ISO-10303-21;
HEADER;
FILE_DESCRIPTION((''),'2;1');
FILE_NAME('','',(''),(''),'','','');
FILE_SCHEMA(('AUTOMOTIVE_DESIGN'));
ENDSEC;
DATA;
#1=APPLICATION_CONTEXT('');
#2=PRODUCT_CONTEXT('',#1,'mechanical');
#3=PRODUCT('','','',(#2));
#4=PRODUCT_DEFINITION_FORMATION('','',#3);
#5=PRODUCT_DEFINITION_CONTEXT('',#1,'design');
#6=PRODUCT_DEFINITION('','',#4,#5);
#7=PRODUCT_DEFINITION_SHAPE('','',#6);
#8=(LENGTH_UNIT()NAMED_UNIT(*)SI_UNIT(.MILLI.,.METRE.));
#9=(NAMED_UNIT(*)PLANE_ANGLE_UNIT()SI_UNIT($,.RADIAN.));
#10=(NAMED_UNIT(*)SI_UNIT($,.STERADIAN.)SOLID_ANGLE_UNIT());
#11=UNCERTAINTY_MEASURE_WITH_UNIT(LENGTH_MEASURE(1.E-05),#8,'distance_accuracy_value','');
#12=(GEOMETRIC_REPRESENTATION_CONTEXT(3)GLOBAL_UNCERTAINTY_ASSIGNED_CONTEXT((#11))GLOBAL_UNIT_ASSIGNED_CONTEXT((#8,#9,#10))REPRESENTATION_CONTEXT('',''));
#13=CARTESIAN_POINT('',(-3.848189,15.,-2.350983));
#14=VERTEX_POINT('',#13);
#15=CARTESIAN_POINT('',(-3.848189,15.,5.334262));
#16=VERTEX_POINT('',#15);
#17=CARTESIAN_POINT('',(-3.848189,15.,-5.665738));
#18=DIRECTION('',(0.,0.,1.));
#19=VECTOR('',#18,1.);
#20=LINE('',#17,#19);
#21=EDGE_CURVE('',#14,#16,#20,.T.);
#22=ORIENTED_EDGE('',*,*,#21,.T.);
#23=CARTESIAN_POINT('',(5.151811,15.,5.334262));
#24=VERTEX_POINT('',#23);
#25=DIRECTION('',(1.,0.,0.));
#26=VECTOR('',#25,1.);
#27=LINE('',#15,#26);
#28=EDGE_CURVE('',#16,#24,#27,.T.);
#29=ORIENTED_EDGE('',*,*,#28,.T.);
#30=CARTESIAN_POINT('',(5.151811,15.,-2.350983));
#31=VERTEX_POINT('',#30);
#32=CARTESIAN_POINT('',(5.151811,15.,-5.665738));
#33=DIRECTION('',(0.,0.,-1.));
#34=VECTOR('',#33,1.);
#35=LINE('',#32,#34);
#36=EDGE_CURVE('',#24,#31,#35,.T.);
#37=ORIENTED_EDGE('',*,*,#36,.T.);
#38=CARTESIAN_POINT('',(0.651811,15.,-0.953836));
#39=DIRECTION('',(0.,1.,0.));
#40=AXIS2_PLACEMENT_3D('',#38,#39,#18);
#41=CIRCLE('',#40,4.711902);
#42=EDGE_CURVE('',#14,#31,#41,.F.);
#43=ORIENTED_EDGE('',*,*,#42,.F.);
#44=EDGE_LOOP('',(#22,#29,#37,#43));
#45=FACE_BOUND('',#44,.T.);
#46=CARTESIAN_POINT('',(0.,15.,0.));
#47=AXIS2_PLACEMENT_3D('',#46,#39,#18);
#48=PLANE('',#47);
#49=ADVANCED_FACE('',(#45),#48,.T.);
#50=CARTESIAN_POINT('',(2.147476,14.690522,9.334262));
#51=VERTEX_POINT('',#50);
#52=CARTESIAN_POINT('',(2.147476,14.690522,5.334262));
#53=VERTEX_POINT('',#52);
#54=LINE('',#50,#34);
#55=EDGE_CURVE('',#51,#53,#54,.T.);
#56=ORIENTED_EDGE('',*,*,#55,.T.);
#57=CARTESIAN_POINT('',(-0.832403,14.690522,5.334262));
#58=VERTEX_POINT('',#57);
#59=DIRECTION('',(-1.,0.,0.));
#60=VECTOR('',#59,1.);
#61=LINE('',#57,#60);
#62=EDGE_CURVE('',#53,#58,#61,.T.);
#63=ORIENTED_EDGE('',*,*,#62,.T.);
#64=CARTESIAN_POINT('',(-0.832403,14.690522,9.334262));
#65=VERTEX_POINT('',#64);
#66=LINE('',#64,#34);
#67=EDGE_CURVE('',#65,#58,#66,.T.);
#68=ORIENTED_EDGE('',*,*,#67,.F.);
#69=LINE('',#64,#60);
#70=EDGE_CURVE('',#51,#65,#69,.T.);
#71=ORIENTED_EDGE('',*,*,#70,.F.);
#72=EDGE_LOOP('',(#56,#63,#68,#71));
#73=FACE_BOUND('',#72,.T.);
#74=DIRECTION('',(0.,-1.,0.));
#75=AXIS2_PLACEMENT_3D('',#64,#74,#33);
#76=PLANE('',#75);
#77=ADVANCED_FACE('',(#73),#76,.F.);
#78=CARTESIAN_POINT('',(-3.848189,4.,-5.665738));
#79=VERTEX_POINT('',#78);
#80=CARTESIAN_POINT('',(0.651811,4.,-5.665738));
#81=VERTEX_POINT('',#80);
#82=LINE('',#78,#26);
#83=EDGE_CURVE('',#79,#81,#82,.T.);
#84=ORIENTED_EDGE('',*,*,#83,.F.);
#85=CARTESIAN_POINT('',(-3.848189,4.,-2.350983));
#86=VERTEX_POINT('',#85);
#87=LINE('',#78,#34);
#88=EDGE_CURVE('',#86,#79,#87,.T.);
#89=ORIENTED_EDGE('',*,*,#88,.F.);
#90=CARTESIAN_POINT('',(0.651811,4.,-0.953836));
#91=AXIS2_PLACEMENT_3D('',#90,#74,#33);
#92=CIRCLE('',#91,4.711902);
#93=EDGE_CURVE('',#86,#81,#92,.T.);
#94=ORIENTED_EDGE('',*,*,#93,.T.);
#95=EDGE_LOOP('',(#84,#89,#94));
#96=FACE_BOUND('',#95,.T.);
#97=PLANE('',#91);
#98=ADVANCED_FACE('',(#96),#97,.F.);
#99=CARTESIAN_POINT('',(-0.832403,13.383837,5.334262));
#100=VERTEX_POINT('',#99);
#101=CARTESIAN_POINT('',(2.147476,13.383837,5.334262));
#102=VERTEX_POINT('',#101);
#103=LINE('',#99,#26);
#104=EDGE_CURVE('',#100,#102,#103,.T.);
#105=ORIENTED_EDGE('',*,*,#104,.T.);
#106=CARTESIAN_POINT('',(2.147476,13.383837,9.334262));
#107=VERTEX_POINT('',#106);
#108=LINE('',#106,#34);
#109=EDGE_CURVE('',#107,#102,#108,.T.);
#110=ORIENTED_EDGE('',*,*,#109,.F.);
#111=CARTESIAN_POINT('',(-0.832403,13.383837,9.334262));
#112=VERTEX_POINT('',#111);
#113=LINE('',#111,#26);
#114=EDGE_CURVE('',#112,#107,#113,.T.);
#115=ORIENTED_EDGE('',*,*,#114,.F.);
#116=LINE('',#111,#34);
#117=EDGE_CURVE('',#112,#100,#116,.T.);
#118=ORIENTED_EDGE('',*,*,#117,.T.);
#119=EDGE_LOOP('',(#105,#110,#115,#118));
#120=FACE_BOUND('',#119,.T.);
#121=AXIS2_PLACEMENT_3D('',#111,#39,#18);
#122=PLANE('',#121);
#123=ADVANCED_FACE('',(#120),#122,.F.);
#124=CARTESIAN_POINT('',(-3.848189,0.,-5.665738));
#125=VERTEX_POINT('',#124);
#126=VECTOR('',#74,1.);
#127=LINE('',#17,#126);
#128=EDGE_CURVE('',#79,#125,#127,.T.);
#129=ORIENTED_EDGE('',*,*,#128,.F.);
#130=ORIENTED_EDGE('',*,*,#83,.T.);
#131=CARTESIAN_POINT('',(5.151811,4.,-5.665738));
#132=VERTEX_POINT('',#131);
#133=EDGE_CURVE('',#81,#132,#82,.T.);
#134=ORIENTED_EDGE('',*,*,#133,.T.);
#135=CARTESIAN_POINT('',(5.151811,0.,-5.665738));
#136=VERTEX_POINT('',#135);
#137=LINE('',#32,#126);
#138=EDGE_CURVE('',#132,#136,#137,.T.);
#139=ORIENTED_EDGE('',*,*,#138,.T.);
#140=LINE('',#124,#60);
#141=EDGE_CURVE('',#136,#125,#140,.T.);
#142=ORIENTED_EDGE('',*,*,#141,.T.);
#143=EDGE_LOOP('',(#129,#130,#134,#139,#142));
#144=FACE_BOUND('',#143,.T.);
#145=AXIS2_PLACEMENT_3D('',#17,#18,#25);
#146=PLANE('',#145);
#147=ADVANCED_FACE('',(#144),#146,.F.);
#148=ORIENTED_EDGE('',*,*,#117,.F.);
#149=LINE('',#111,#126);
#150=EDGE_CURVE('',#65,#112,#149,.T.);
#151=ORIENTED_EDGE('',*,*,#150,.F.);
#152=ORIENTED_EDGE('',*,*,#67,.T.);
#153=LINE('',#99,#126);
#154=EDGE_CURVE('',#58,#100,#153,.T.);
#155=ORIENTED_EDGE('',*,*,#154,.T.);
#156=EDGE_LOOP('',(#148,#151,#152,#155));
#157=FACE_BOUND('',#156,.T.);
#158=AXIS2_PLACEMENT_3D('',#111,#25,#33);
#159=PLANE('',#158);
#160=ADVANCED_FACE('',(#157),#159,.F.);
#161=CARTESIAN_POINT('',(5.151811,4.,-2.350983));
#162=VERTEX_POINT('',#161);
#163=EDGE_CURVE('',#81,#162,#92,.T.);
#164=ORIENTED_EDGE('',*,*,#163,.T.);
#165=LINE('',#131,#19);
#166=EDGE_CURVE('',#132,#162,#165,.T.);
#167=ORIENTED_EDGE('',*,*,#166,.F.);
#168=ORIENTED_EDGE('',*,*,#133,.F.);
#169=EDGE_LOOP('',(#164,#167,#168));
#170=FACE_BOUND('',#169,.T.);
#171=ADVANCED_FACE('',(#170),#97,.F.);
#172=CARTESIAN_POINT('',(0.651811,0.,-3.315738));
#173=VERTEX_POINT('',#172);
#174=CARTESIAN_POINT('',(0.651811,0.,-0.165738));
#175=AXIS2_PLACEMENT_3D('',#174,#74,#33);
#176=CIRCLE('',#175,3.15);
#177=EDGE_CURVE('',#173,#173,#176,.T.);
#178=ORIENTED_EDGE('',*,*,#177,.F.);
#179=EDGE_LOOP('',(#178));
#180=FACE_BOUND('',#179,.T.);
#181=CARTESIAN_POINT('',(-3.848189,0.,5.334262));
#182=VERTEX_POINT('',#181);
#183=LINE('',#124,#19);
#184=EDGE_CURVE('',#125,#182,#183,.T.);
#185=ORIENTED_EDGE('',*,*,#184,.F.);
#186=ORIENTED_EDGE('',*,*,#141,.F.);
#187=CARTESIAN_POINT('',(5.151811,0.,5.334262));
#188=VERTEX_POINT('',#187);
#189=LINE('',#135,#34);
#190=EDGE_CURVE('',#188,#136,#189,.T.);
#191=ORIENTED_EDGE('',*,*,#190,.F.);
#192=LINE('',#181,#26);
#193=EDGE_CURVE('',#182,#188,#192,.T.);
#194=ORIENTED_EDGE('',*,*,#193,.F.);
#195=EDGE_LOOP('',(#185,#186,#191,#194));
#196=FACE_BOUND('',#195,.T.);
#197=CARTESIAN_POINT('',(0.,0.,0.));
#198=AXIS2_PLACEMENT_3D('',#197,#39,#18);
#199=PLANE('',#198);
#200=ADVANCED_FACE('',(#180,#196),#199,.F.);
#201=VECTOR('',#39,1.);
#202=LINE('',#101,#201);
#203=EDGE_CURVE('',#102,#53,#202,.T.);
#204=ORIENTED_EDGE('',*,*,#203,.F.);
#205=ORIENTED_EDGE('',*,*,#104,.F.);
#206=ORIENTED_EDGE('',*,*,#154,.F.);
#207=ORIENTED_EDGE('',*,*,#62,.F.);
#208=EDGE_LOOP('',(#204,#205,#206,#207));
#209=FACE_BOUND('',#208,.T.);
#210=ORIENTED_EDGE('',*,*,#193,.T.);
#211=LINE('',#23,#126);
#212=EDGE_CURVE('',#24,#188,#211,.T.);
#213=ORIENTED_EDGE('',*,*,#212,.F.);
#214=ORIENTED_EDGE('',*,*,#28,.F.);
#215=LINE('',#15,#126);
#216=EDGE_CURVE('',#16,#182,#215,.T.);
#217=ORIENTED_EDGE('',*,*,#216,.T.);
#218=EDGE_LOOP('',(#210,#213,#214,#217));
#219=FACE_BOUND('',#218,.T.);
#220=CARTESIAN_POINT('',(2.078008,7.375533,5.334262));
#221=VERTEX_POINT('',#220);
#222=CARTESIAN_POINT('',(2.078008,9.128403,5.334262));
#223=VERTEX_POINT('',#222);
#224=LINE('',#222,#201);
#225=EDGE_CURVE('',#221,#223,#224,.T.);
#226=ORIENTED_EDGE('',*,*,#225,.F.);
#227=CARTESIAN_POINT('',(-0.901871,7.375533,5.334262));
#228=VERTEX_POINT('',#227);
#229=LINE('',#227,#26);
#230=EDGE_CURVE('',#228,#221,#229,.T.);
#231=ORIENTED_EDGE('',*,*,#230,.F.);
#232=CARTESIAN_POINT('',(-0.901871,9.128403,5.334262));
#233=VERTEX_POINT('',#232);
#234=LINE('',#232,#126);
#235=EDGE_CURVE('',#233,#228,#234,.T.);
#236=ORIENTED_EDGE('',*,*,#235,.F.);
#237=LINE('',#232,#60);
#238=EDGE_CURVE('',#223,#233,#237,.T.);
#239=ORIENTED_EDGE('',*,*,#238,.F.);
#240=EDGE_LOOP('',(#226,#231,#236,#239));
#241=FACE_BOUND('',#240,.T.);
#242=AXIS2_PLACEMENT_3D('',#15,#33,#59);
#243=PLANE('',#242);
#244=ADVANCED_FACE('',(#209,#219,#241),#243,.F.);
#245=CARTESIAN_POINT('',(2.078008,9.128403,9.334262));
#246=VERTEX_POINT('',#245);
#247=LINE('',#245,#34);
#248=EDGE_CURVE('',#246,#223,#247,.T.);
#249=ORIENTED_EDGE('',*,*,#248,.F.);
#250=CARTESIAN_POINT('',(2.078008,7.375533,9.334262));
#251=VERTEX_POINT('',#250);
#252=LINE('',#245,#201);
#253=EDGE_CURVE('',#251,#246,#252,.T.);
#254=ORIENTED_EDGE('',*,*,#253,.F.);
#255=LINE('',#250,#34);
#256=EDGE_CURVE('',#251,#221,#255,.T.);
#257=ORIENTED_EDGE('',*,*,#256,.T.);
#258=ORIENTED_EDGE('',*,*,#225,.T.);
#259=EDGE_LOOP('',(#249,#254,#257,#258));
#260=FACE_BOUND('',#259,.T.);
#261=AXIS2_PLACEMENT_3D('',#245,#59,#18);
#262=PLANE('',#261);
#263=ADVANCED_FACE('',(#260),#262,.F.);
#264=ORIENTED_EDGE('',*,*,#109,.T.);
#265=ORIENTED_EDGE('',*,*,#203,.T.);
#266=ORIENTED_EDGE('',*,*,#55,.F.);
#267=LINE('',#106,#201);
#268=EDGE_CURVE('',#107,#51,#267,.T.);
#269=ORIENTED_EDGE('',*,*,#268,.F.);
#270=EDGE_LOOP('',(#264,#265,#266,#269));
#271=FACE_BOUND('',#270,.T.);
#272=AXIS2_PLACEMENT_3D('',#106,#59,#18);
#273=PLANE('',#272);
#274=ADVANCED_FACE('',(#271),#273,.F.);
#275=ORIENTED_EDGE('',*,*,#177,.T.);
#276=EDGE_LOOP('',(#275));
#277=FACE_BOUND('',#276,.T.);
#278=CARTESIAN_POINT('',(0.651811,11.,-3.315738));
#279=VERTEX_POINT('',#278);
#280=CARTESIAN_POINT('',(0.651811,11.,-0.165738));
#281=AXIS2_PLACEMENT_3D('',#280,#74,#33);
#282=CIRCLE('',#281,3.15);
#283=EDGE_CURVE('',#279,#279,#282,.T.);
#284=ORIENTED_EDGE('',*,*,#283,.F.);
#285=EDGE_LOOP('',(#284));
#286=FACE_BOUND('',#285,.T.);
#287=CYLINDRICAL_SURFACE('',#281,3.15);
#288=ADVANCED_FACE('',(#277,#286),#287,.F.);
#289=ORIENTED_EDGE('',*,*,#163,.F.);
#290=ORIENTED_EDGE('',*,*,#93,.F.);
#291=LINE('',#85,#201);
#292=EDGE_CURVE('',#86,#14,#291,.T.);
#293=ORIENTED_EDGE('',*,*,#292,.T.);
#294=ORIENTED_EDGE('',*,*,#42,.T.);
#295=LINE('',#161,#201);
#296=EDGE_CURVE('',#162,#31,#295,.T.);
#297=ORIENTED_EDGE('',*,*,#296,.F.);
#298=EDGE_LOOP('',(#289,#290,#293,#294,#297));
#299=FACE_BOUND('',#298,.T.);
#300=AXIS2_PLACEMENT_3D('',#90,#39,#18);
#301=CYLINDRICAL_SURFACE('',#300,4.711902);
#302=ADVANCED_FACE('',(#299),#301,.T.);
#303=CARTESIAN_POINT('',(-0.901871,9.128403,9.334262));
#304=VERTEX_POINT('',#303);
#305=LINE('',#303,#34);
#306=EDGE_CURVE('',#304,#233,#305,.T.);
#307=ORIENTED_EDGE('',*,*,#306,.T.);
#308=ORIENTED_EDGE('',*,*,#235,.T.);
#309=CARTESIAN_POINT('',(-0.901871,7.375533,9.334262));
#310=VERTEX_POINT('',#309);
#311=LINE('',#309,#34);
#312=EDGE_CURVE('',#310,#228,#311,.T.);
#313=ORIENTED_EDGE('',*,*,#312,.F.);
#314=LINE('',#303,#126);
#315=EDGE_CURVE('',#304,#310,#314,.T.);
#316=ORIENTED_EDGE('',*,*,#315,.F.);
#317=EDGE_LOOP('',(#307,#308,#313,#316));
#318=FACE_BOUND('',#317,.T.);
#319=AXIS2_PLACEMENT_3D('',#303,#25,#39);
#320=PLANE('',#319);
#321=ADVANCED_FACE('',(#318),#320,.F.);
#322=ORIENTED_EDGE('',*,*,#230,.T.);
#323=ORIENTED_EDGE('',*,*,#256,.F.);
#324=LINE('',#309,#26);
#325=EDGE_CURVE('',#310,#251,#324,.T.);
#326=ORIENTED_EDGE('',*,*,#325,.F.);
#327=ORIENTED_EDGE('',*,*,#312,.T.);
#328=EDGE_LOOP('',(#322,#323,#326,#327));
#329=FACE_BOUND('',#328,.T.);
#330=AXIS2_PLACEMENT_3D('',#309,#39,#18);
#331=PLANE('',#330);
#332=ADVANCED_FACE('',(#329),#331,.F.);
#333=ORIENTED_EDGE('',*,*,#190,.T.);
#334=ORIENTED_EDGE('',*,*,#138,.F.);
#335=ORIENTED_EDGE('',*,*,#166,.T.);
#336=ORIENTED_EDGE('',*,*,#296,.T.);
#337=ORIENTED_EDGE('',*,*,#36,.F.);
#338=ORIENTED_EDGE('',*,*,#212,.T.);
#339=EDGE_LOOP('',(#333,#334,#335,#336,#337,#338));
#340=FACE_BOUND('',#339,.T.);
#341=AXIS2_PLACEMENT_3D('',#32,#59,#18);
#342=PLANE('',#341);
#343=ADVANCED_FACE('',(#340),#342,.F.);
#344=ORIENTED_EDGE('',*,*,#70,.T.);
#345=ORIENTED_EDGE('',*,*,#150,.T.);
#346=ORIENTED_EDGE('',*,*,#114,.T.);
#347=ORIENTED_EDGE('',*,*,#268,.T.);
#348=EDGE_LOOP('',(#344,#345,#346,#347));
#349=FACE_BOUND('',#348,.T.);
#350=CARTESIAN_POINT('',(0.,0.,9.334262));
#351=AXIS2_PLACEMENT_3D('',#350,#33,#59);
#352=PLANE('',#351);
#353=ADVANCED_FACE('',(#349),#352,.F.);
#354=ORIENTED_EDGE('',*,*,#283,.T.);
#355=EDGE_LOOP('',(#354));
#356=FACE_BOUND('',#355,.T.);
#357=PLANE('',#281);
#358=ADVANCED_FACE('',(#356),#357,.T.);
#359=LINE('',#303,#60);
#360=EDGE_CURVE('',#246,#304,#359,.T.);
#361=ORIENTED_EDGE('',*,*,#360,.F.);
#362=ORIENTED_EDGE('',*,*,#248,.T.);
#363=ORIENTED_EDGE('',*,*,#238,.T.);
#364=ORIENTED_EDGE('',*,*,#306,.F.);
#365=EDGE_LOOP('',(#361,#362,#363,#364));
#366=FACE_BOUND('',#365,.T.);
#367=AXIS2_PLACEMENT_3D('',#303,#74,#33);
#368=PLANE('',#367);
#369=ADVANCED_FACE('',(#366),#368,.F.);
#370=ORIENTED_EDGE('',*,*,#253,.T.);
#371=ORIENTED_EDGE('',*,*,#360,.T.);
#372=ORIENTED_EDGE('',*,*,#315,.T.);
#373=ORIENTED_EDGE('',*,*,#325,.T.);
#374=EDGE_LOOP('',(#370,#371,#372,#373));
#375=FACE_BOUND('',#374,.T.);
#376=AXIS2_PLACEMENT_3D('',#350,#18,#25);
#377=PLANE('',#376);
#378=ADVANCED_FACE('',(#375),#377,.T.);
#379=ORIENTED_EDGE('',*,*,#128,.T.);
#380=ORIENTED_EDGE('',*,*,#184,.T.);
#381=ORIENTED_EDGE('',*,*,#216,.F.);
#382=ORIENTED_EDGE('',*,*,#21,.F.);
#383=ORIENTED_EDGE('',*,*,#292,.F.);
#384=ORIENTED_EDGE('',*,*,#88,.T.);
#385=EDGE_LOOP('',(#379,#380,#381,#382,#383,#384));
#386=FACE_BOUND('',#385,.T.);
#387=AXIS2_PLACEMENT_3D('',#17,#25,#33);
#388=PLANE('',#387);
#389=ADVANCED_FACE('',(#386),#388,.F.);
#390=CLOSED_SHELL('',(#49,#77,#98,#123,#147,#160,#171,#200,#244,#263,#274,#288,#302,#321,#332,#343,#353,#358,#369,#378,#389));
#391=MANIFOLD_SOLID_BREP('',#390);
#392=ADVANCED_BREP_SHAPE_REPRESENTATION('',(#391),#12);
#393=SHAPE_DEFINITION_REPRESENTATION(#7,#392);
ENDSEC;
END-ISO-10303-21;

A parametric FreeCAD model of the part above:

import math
import FreeCAD as App
import Part
import Sketcher
from FreeCAD import Vector


def add_polygon(sketch, points):
    """Adds a closed chain of lines whose ends are joined by coincident constraints."""
    first, n = sketch.GeometryCount, len(points)
    for a, b in zip(points, points[1:] + points[:1]):
        sketch.addGeometry(Part.LineSegment(App.Vector(*a, 0), App.Vector(*b, 0)), False)
    for i in range(n):
        sketch.addConstraint(Sketcher.Constraint("Coincident", first + i, 2, first + (i + 1) % n, 1))

doc = App.newDocument("Part")
body = doc.addObject("PartDesign::Body", "Body")

# Sketch on XZ plane
sketch1 = body.newObject("Sketcher::SketchObject", "Sketch")
sketch1.AttachmentSupport = (doc.getObject("XZ_Plane"), [""])
sketch1.MapMode = "FlatFace"
add_polygon(sketch1, [(-4, -6), (-4, 5), (5, 5), (5, -6)])  # lines 0-3
sketch1.addConstraint(Sketcher.Constraint("Vertical", 0))
sketch1.addConstraint(Sketcher.Constraint("Horizontal", 1))
sketch1.addConstraint(Sketcher.Constraint("Vertical", 2))
sketch1.addConstraint(Sketcher.Constraint("Horizontal", 3))
sketch1.addConstraint(Sketcher.Constraint("DistanceX", 1, 1, 1, 2, 9.0))
sketch1.addConstraint(Sketcher.Constraint("DistanceY", 0, 1, 0, 2, 11.0))
sketch1.addConstraint(Sketcher.Constraint("DistanceX", 0, 2, -1, 1, 3.848189))
sketch1.addConstraint(Sketcher.Constraint("DistanceY", -1, 1, 0, 2, 5.334262))
pad1 = body.newObject("PartDesign::Pad", "Pad")
pad1.Profile = sketch1
pad1.Length = 15
pad1.Reversed = True

# Sketch on XZ plane
sketch2 = body.newObject("Sketcher::SketchObject", "Sketch001")
sketch2.AttachmentSupport = (doc.getObject("XZ_Plane"), [""])
sketch2.MapMode = "FlatFace"
sketch2.AttachmentOffset = App.Placement(Vector(0, 0, -15), App.Rotation())
sketch2.addGeometry(Part.LineSegment(Vector(-6.5, -7.1, 0), Vector(-3.8, -2.4, 0)), False)
sketch2.addGeometry(Part.ArcOfCircle(Part.Circle(Vector(0.7, -1, 0), Vector(0, 0, 1), 4.7), math.radians(-163), math.radians(-17)), False)
sketch2.addGeometry(Part.LineSegment(Vector(5.2, -2.4, 0), Vector(7.1, -6.8, 0)), False)
sketch2.addGeometry(Part.LineSegment(Vector(7.1, -6.8, 0), Vector(-6.5, -7.1, 0)), False)
sketch2.addConstraint(Sketcher.Constraint("Coincident", 0, 2, 1, 1))
sketch2.addConstraint(Sketcher.Constraint("Coincident", 1, 2, 2, 1))
sketch2.addConstraint(Sketcher.Constraint("Coincident", 2, 2, 3, 1))
sketch2.addConstraint(Sketcher.Constraint("Coincident", 3, 2, 0, 1))
sketch2.addConstraint(Sketcher.Constraint("Horizontal", 0, 2, 1, 2))
sketch2.addConstraint(Sketcher.Constraint("DistanceX", 0, 2, 1, 2, 9.0))
sketch2.addConstraint(Sketcher.Constraint("Radius", 1, 4.711902))
sketch2.addConstraint(Sketcher.Constraint("Distance", 0, 5.444049))
sketch2.addConstraint(Sketcher.Constraint("DistanceX", -1, 1, 1, 3, 0.651811))
sketch2.addConstraint(Sketcher.Constraint("DistanceY", 2, 2, -1, 1, 6.82945))
sketch2.addConstraint(Sketcher.Constraint("DistanceX", 3, 2, -1, 1, 6.541969))
sketch2.addConstraint(Sketcher.Constraint("Distance", 2, 4.865967))
sketch2.addConstraint(Sketcher.Constraint("Distance", 3, 13.599007))
pocket1 = body.newObject("PartDesign::Pocket", "Pocket")
pocket1.Profile = sketch2
pocket1.Length = 11
pocket1.Reversed = True

# Sketch on XZ plane
sketch3 = body.newObject("Sketcher::SketchObject", "Sketch002")
sketch3.AttachmentSupport = (doc.getObject("XZ_Plane"), [""])
sketch3.MapMode = "FlatFace"
sketch3.addGeometry(Part.Circle(Vector(0.7, -0.2, 0), Vector(0, 0, 1), 3.1), False)
sketch3.addConstraint(Sketcher.Constraint("Diameter", 0, 6.3))
sketch3.addConstraint(Sketcher.Constraint("DistanceX", -1, 1, 0, 3, 0.651811))
sketch3.addConstraint(Sketcher.Constraint("DistanceY", 0, 3, -1, 1, 0.165738))
pocket2 = body.newObject("PartDesign::Pocket", "Pocket001")
pocket2.Profile = sketch3
pocket2.Length = 11

# Sketch on XY plane
sketch4 = body.newObject("Sketcher::SketchObject", "Sketch003")
sketch4.AttachmentSupport = (doc.getObject("XY_Plane"), [""])
sketch4.MapMode = "FlatFace"
sketch4.AttachmentOffset = App.Placement(Vector(0, 0, 5.334262), App.Rotation())
add_polygon(sketch4, [(-0.8, 14.7), (-0.8, 13.4), (2.1, 13.4), (2.1, 14.7)])  # lines 0-3
add_polygon(sketch4, [(-0.9, 9.1), (-0.9, 7.4), (2.1, 7.4), (2.1, 9.1)])  # lines 4-7
sketch4.addConstraint(Sketcher.Constraint("Vertical", 0))
sketch4.addConstraint(Sketcher.Constraint("Horizontal", 1))
sketch4.addConstraint(Sketcher.Constraint("Vertical", 2))
sketch4.addConstraint(Sketcher.Constraint("Horizontal", 3))
sketch4.addConstraint(Sketcher.Constraint("Vertical", 4))
sketch4.addConstraint(Sketcher.Constraint("Horizontal", 5))
sketch4.addConstraint(Sketcher.Constraint("Vertical", 6))
sketch4.addConstraint(Sketcher.Constraint("Horizontal", 7))
sketch4.addConstraint(Sketcher.Constraint("Equal", 3, 5))
sketch4.addConstraint(Sketcher.Constraint("DistanceX", 1, 1, 1, 2, 2.979879))
sketch4.addConstraint(Sketcher.Constraint("DistanceY", 4, 2, 4, 1, 1.75287))
sketch4.addConstraint(Sketcher.Constraint("DistanceY", 0, 2, 0, 1, 1.306685))
sketch4.addConstraint(Sketcher.Constraint("DistanceX", 4, 2, -1, 1, 0.901871))
sketch4.addConstraint(Sketcher.Constraint("DistanceY", 4, 2, 3, 2, 7.31499))
sketch4.addConstraint(Sketcher.Constraint("DistanceX", 0, 2, 5, 2, 2.910411))
sketch4.addConstraint(Sketcher.Constraint("DistanceY", -1, 1, 0, 2, 13.383837))
pad2 = body.newObject("PartDesign::Pad", "Pad001")
pad2.Profile = sketch4
pad2.Length = 4

doc.recompute()
